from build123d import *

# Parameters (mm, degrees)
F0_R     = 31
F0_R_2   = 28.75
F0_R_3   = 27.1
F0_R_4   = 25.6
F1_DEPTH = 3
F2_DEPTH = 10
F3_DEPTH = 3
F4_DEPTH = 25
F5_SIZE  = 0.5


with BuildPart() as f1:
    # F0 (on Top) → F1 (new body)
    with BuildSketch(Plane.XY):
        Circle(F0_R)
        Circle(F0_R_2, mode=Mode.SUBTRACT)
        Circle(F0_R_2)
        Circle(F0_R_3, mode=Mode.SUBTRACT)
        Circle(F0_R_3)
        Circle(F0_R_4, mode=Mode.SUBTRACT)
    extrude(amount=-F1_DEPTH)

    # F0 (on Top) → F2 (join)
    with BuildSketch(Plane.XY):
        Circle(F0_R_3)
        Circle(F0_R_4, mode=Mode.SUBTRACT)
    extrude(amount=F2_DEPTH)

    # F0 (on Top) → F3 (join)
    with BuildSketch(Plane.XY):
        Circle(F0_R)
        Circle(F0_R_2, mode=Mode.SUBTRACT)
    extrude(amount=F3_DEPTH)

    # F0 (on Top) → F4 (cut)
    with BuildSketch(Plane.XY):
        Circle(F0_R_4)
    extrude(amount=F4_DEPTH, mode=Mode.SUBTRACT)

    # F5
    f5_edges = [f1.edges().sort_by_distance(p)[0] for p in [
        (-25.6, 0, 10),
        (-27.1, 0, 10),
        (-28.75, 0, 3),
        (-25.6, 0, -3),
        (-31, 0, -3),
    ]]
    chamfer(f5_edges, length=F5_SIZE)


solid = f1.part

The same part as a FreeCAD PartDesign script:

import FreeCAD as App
import Part
import Sketcher

V = App.Vector
Q = App.Units.Quantity


def edges_at(feature, points):
    """Names of the edges that pass closest to the given points."""
    edges = feature.Shape.Edges
    near = lambda p: min(range(len(edges)), key=lambda i: edges[i].distToShape(Part.Vertex(*p))[0])
    return sorted({f"Edge{near(p) + 1}" for p in points})

doc = App.newDocument("Part")
body = doc.addObject("PartDesign::Body", "Body")

# Sketch on XY plane
sketch1 = doc.addObject("Sketcher::SketchObject", "Sketch")
body.addObject(sketch1)
sketch1.AttachmentSupport = (doc.XY_Plane, [""])
sketch1.MapMode = "FlatFace"
sketch1.addGeometry([
    Part.Circle(V(0, 0, 0), V(0, 0, 1), 31),
    Part.Circle(V(0, 0, 0), V(0, 0, 1), 26),
], False)
sketch1.addConstraint([
    Sketcher.Constraint("Coincident", 0, 3, -1, 1),
    Sketcher.Constraint("Coincident", 1, 3, -1, 1),
    Sketcher.Constraint("Diameter", 0, Q("62 mm")),
    Sketcher.Constraint("Diameter", 1, Q("51.2 mm")),
])
pad1 = doc.addObject("PartDesign::Pad", "Pad")
body.addObject(pad1)
pad1.Profile = sketch1
pad1.Length = 3
pad1.Reversed = True

# Sketch on XY plane
sketch2 = doc.addObject("Sketcher::SketchObject", "Sketch001")
body.addObject(sketch2)
sketch2.AttachmentSupport = (doc.XY_Plane, [""])
sketch2.MapMode = "FlatFace"
sketch2.addGeometry([
    Part.Circle(V(0, 0, 0), V(0, 0, 1), 27),
    Part.Circle(V(0, 0, 0), V(0, 0, 1), 26),
], False)
sketch2.addConstraint([
    Sketcher.Constraint("Coincident", 0, 3, -1, 1),
    Sketcher.Constraint("Coincident", 1, 3, -1, 1),
    Sketcher.Constraint("Diameter", 0, Q("54.2 mm")),
    Sketcher.Constraint("Diameter", 1, Q("51.2 mm")),
])
pad2 = doc.addObject("PartDesign::Pad", "Pad001")
body.addObject(pad2)
pad2.Profile = sketch2
pad2.Length = 10

# Sketch on XY plane
sketch3 = doc.addObject("Sketcher::SketchObject", "Sketch002")
body.addObject(sketch3)
sketch3.AttachmentSupport = (doc.XY_Plane, [""])
sketch3.MapMode = "FlatFace"
sketch3.addGeometry([
    Part.Circle(V(0, 0, 0), V(0, 0, 1), 31),
    Part.Circle(V(0, 0, 0), V(0, 0, 1), 29),
], False)
sketch3.addConstraint([
    Sketcher.Constraint("Coincident", 0, 3, -1, 1),
    Sketcher.Constraint("Coincident", 1, 3, -1, 1),
    Sketcher.Constraint("Diameter", 0, Q("62 mm")),
    Sketcher.Constraint("Diameter", 1, Q("57.5 mm")),
])
pad3 = doc.addObject("PartDesign::Pad", "Pad002")
body.addObject(pad3)
pad3.Profile = sketch3
pad3.Length = 3

# Sketch on XY plane
sketch4 = doc.addObject("Sketcher::SketchObject", "Sketch003")
body.addObject(sketch4)
sketch4.AttachmentSupport = (doc.XY_Plane, [""])
sketch4.MapMode = "FlatFace"
sketch4.addGeometry(Part.Circle(V(0, 0, 0), V(0, 0, 1), 26), False)
sketch4.addConstraint([
    Sketcher.Constraint("Coincident", 0, 3, -1, 1),
    Sketcher.Constraint("Diameter", 0, Q("51.2 mm")),
])
pocket1 = doc.addObject("PartDesign::Pocket", "Pocket")
body.addObject(pocket1)
pocket1.Profile = sketch4
pocket1.Length = 25
pocket1.Reversed = True
doc.recompute()

chamfer = doc.addObject("PartDesign::Chamfer", "Chamfer")
body.addObject(chamfer)
chamfer.Base = (pocket1, edges_at(pocket1, [
    (-25.6, 0, 10),
    (-27.1, 0, 10),
    (-28.75, 0, 3),
    (-25.6, 0, -3),
    (-31, 0, -3),
]))
chamfer.Size = 0.5

doc.recompute()
